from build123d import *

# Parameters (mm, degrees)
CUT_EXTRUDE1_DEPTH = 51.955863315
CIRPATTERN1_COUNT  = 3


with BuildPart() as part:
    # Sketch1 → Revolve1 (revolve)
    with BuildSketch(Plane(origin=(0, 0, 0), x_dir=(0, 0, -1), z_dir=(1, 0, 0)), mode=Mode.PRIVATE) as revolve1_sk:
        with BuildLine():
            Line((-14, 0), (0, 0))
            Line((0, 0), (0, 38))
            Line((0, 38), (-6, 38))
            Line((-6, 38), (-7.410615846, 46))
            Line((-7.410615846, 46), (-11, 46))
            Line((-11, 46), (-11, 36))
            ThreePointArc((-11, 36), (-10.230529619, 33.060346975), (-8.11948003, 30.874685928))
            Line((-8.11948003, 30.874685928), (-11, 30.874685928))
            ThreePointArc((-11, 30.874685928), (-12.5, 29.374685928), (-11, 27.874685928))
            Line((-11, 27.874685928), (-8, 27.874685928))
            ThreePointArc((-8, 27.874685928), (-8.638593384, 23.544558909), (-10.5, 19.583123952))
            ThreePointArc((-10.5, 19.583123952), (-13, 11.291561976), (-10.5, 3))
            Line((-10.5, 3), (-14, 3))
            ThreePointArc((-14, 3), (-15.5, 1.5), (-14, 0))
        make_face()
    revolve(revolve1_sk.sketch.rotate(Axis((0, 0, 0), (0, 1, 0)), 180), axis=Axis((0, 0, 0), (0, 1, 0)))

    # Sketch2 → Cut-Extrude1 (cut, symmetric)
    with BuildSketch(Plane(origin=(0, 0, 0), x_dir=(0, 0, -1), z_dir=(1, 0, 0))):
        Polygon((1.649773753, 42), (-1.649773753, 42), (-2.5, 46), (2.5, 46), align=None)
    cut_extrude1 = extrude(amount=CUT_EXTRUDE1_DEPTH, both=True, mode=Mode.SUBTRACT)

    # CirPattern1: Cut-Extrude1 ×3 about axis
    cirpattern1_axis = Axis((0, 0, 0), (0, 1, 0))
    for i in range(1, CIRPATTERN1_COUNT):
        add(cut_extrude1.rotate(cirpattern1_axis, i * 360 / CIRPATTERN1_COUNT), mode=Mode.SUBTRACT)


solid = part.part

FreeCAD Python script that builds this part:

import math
import FreeCAD as App
import Part
import Sketcher
from FreeCAD import Vector
Q = App.Units.Quantity

doc = App.newDocument("Part")
params = doc.addObject("Spreadsheet::Sheet", "Params")
for row, (alias, value) in enumerate([
    ("sketch1_radius", "6 mm"),
    ("sketch1_radius2", "15 mm"),
    ("sketch1_radius3", "1.5 mm"),
    ("sketch1_width", "38 mm"),
    ("sketch1_width2", "10 mm"),
    ("revolution_angle", "360 deg"),
    ("sketch2_height", "5 mm"),
    ("pocket1_length", "103.911727 mm"),
], start=1):
    params.set(f"A{row}", alias)
    params.set(f"B{row}", "=" + value)
    params.setAlias(f"B{row}", alias)

body = doc.addObject("PartDesign::Body", "Body")

sketch1 = doc.addObject("Sketcher::SketchObject", "Sketch")
body.addObject(sketch1)
sketch1.AttachmentSupport = (doc.YZ_Plane, [""])
sketch1.MapMode = "FlatFace"
sketch1.addGeometry([
    Part.LineSegment(Vector(0, 14, 0), Vector(0, 0, 0)),
    Part.LineSegment(Vector(0, 0, 0), Vector(38, 0, 0)),
    Part.LineSegment(Vector(38, 0, 0), Vector(38, 6, 0)),
    Part.LineSegment(Vector(38, 6, 0), Vector(46, 7.410616, 0)),
    Part.LineSegment(Vector(46, 7.410616, 0), Vector(46, 11, 0)),
    Part.LineSegment(Vector(46, 11, 0), Vector(36, 11, 0)),
    Part.ArcOfCircle(Part.Circle(Vector(36, 5, 0), Vector(0, 0, 1), 6), math.radians(90), math.radians(148.673561)),
    Part.LineSegment(Vector(30.874686, 8.11948, 0), Vector(30.874686, 11, 0)),
    Part.ArcOfCircle(Part.Circle(Vector(29.374686, 11, 0), Vector(0, 0, 1), 1.5), math.radians(0), math.radians(180)),
    Part.LineSegment(Vector(27.874686, 11, 0), Vector(27.874686, 8, 0)),
    Part.ArcOfCircle(Part.Circle(Vector(27.874686, 23, 0), Vector(0, 0, 1), 15), math.radians(-123.55731), math.radians(-90)),
    Part.ArcOfCircle(Part.Circle(Vector(11.291562, -2, 0), Vector(0, 0, 1), 15), math.radians(56.44269), math.radians(123.55731)),
    Part.LineSegment(Vector(3, 10.5, 0), Vector(3, 14, 0)),
    Part.ArcOfCircle(Part.Circle(Vector(1.5, 14, 0), Vector(0, 0, 1), 1.5), math.radians(0), math.radians(180)),
], False)
sketch1.addConstraint([
    Sketcher.Constraint("Coincident", 0, 2, 1, 1),
    Sketcher.Constraint("Coincident", 1, 2, 2, 1),
    Sketcher.Constraint("Coincident", 2, 2, 3, 1),
    Sketcher.Constraint("Coincident", 3, 2, 4, 1),
    Sketcher.Constraint("Coincident", 4, 2, 5, 1),
    Sketcher.Constraint("Tangent", 5, 2, 6, 1),
    Sketcher.Constraint("Coincident", 6, 2, 7, 1),
    Sketcher.Constraint("Tangent", 7, 2, 8, 1),
    Sketcher.Constraint("Tangent", 8, 2, 9, 1),
    Sketcher.Constraint("Coincident", 9, 2, 10, 2),
    Sketcher.Constraint("Tangent", 10, 1, 11, 1),
    Sketcher.Constraint("Coincident", 11, 2, 12, 1),
    Sketcher.Constraint("Tangent", 12, 2, 13, 1),
    Sketcher.Constraint("Tangent", 13, 2, 0, 1),
    Sketcher.Constraint("Vertical", 0),
    Sketcher.Constraint("Horizontal", 1),
    Sketcher.Constraint("Vertical", 2),
    Sketcher.Constraint("Vertical", 4),
    Sketcher.Constraint("Horizontal", 5),
    Sketcher.Constraint("Vertical", 7),
    Sketcher.Constraint("Vertical", 9),
    Sketcher.Constraint("Vertical", 12),
    Sketcher.Constraint("Coincident", 0, 2, -1, 1),
    Sketcher.Constraint("Equal", 10, 11),
    Sketcher.Constraint("Equal", 8, 13),
    Sketcher.Constraint("Horizontal", 8, 3, 4, 2),
    Sketcher.Constraint("Horizontal", 10, 1, 11, 2),
    Sketcher.Constraint("Vertical", 10, 3, 8, 2),
    Sketcher.Constraint("Radius", 6, 6.0),
    Sketcher.Constraint("Radius", 10, 15.0),
    Sketcher.Constraint("Radius", 8, 1.5),
    Sketcher.Constraint("DistanceX", 1, 1, 1, 2, 38.0),
    Sketcher.Constraint("DistanceX", 5, 2, 5, 1, 10.0),
    Sketcher.Constraint("DistanceY", 0, 2, 0, 1, 14.0),
    Sketcher.Constraint("DistanceY", 2, 1, 2, 2, 6.0),
    Sketcher.Constraint("DistanceY", 9, 2, 9, 1, 3.0),
    Sketcher.Constraint("Angle", 3, Q("10 deg")),
    Sketcher.Constraint("DistanceY", 12, 1, 12, 2, 3.5),
    Sketcher.Constraint("DistanceX", -1, 1, 6, 3, 36.0),
    Sketcher.Constraint("DistanceY", -1, 1, 6, 3, 5.0),
])
sketch1.setExpression("Constraints[28]", "Params.sketch1_radius")
sketch1.setExpression("Constraints[29]", "Params.sketch1_radius2")
sketch1.setExpression("Constraints[30]", "Params.sketch1_radius3")
sketch1.setExpression("Constraints[31]", "Params.sketch1_width")
sketch1.setExpression("Constraints[32]", "Params.sketch1_width2")
revolution = doc.addObject("PartDesign::Revolution", "Revolution")
body.addObject(revolution)
revolution.Profile = sketch1
revolution.ReferenceAxis = (sketch1, ["H_Axis"])
revolution.setExpression("Angle", "Params.revolution_angle")

sketch2 = doc.addObject("Sketcher::SketchObject", "Sketch001")
body.addObject(sketch2)
sketch2.AttachmentSupport = (doc.YZ_Plane, [""])
sketch2.MapMode = "FlatFace"
sketch2.addGeometry([
    Part.LineSegment(Vector(42, 1.649774, 0), Vector(42, -1.649774, 0)),
    Part.LineSegment(Vector(42, -1.649774, 0), Vector(46, -2.5, 0)),
    Part.LineSegment(Vector(46, -2.5, 0), Vector(46, 2.5, 0)),
    Part.LineSegment(Vector(46, 2.5, 0), Vector(42, 1.649774, 0)),
], False)
sketch2.addConstraint([
    Sketcher.Constraint("Coincident", 0, 2, 1, 1),
    Sketcher.Constraint("Coincident", 1, 2, 2, 1),
    Sketcher.Constraint("Coincident", 2, 2, 3, 1),
    Sketcher.Constraint("Coincident", 3, 2, 0, 1),
    Sketcher.Constraint("Vertical", 0),
    Sketcher.Constraint("Vertical", 2),
    Sketcher.Constraint("Equal", 1, 3),
    Sketcher.Constraint("DistanceY", 2, 1, 2, 2, 5.0),
    Sketcher.Constraint("Angle", 1, Q("-12 deg")),
    Sketcher.Constraint("DistanceX", -1, 1, 0, 2, 42.0),
    Sketcher.Constraint("DistanceX", -1, 1, 1, 2, 46.0),
    Sketcher.Constraint("DistanceY", 1, 2, -1, 1, 2.5),
])
sketch2.setExpression("Constraints[7]", "Params.sketch2_height")
pocket1 = doc.addObject("PartDesign::Pocket", "Pocket")
body.addObject(pocket1)
pocket1.Profile = sketch2
pocket1.setExpression("Length", "Params.pocket1_length")
pocket1.Midplane = True
doc.recompute()

polarpattern = doc.addObject("PartDesign::PolarPattern", "PolarPattern")
body.addObject(polarpattern)
polarpattern.Originals = [pocket1]
polarpattern.Axis = (doc.Y_Axis, [""])
polarpattern.Angle = 360
polarpattern.Occurrences = 3
body.Tip = polarpattern

doc.recompute()
